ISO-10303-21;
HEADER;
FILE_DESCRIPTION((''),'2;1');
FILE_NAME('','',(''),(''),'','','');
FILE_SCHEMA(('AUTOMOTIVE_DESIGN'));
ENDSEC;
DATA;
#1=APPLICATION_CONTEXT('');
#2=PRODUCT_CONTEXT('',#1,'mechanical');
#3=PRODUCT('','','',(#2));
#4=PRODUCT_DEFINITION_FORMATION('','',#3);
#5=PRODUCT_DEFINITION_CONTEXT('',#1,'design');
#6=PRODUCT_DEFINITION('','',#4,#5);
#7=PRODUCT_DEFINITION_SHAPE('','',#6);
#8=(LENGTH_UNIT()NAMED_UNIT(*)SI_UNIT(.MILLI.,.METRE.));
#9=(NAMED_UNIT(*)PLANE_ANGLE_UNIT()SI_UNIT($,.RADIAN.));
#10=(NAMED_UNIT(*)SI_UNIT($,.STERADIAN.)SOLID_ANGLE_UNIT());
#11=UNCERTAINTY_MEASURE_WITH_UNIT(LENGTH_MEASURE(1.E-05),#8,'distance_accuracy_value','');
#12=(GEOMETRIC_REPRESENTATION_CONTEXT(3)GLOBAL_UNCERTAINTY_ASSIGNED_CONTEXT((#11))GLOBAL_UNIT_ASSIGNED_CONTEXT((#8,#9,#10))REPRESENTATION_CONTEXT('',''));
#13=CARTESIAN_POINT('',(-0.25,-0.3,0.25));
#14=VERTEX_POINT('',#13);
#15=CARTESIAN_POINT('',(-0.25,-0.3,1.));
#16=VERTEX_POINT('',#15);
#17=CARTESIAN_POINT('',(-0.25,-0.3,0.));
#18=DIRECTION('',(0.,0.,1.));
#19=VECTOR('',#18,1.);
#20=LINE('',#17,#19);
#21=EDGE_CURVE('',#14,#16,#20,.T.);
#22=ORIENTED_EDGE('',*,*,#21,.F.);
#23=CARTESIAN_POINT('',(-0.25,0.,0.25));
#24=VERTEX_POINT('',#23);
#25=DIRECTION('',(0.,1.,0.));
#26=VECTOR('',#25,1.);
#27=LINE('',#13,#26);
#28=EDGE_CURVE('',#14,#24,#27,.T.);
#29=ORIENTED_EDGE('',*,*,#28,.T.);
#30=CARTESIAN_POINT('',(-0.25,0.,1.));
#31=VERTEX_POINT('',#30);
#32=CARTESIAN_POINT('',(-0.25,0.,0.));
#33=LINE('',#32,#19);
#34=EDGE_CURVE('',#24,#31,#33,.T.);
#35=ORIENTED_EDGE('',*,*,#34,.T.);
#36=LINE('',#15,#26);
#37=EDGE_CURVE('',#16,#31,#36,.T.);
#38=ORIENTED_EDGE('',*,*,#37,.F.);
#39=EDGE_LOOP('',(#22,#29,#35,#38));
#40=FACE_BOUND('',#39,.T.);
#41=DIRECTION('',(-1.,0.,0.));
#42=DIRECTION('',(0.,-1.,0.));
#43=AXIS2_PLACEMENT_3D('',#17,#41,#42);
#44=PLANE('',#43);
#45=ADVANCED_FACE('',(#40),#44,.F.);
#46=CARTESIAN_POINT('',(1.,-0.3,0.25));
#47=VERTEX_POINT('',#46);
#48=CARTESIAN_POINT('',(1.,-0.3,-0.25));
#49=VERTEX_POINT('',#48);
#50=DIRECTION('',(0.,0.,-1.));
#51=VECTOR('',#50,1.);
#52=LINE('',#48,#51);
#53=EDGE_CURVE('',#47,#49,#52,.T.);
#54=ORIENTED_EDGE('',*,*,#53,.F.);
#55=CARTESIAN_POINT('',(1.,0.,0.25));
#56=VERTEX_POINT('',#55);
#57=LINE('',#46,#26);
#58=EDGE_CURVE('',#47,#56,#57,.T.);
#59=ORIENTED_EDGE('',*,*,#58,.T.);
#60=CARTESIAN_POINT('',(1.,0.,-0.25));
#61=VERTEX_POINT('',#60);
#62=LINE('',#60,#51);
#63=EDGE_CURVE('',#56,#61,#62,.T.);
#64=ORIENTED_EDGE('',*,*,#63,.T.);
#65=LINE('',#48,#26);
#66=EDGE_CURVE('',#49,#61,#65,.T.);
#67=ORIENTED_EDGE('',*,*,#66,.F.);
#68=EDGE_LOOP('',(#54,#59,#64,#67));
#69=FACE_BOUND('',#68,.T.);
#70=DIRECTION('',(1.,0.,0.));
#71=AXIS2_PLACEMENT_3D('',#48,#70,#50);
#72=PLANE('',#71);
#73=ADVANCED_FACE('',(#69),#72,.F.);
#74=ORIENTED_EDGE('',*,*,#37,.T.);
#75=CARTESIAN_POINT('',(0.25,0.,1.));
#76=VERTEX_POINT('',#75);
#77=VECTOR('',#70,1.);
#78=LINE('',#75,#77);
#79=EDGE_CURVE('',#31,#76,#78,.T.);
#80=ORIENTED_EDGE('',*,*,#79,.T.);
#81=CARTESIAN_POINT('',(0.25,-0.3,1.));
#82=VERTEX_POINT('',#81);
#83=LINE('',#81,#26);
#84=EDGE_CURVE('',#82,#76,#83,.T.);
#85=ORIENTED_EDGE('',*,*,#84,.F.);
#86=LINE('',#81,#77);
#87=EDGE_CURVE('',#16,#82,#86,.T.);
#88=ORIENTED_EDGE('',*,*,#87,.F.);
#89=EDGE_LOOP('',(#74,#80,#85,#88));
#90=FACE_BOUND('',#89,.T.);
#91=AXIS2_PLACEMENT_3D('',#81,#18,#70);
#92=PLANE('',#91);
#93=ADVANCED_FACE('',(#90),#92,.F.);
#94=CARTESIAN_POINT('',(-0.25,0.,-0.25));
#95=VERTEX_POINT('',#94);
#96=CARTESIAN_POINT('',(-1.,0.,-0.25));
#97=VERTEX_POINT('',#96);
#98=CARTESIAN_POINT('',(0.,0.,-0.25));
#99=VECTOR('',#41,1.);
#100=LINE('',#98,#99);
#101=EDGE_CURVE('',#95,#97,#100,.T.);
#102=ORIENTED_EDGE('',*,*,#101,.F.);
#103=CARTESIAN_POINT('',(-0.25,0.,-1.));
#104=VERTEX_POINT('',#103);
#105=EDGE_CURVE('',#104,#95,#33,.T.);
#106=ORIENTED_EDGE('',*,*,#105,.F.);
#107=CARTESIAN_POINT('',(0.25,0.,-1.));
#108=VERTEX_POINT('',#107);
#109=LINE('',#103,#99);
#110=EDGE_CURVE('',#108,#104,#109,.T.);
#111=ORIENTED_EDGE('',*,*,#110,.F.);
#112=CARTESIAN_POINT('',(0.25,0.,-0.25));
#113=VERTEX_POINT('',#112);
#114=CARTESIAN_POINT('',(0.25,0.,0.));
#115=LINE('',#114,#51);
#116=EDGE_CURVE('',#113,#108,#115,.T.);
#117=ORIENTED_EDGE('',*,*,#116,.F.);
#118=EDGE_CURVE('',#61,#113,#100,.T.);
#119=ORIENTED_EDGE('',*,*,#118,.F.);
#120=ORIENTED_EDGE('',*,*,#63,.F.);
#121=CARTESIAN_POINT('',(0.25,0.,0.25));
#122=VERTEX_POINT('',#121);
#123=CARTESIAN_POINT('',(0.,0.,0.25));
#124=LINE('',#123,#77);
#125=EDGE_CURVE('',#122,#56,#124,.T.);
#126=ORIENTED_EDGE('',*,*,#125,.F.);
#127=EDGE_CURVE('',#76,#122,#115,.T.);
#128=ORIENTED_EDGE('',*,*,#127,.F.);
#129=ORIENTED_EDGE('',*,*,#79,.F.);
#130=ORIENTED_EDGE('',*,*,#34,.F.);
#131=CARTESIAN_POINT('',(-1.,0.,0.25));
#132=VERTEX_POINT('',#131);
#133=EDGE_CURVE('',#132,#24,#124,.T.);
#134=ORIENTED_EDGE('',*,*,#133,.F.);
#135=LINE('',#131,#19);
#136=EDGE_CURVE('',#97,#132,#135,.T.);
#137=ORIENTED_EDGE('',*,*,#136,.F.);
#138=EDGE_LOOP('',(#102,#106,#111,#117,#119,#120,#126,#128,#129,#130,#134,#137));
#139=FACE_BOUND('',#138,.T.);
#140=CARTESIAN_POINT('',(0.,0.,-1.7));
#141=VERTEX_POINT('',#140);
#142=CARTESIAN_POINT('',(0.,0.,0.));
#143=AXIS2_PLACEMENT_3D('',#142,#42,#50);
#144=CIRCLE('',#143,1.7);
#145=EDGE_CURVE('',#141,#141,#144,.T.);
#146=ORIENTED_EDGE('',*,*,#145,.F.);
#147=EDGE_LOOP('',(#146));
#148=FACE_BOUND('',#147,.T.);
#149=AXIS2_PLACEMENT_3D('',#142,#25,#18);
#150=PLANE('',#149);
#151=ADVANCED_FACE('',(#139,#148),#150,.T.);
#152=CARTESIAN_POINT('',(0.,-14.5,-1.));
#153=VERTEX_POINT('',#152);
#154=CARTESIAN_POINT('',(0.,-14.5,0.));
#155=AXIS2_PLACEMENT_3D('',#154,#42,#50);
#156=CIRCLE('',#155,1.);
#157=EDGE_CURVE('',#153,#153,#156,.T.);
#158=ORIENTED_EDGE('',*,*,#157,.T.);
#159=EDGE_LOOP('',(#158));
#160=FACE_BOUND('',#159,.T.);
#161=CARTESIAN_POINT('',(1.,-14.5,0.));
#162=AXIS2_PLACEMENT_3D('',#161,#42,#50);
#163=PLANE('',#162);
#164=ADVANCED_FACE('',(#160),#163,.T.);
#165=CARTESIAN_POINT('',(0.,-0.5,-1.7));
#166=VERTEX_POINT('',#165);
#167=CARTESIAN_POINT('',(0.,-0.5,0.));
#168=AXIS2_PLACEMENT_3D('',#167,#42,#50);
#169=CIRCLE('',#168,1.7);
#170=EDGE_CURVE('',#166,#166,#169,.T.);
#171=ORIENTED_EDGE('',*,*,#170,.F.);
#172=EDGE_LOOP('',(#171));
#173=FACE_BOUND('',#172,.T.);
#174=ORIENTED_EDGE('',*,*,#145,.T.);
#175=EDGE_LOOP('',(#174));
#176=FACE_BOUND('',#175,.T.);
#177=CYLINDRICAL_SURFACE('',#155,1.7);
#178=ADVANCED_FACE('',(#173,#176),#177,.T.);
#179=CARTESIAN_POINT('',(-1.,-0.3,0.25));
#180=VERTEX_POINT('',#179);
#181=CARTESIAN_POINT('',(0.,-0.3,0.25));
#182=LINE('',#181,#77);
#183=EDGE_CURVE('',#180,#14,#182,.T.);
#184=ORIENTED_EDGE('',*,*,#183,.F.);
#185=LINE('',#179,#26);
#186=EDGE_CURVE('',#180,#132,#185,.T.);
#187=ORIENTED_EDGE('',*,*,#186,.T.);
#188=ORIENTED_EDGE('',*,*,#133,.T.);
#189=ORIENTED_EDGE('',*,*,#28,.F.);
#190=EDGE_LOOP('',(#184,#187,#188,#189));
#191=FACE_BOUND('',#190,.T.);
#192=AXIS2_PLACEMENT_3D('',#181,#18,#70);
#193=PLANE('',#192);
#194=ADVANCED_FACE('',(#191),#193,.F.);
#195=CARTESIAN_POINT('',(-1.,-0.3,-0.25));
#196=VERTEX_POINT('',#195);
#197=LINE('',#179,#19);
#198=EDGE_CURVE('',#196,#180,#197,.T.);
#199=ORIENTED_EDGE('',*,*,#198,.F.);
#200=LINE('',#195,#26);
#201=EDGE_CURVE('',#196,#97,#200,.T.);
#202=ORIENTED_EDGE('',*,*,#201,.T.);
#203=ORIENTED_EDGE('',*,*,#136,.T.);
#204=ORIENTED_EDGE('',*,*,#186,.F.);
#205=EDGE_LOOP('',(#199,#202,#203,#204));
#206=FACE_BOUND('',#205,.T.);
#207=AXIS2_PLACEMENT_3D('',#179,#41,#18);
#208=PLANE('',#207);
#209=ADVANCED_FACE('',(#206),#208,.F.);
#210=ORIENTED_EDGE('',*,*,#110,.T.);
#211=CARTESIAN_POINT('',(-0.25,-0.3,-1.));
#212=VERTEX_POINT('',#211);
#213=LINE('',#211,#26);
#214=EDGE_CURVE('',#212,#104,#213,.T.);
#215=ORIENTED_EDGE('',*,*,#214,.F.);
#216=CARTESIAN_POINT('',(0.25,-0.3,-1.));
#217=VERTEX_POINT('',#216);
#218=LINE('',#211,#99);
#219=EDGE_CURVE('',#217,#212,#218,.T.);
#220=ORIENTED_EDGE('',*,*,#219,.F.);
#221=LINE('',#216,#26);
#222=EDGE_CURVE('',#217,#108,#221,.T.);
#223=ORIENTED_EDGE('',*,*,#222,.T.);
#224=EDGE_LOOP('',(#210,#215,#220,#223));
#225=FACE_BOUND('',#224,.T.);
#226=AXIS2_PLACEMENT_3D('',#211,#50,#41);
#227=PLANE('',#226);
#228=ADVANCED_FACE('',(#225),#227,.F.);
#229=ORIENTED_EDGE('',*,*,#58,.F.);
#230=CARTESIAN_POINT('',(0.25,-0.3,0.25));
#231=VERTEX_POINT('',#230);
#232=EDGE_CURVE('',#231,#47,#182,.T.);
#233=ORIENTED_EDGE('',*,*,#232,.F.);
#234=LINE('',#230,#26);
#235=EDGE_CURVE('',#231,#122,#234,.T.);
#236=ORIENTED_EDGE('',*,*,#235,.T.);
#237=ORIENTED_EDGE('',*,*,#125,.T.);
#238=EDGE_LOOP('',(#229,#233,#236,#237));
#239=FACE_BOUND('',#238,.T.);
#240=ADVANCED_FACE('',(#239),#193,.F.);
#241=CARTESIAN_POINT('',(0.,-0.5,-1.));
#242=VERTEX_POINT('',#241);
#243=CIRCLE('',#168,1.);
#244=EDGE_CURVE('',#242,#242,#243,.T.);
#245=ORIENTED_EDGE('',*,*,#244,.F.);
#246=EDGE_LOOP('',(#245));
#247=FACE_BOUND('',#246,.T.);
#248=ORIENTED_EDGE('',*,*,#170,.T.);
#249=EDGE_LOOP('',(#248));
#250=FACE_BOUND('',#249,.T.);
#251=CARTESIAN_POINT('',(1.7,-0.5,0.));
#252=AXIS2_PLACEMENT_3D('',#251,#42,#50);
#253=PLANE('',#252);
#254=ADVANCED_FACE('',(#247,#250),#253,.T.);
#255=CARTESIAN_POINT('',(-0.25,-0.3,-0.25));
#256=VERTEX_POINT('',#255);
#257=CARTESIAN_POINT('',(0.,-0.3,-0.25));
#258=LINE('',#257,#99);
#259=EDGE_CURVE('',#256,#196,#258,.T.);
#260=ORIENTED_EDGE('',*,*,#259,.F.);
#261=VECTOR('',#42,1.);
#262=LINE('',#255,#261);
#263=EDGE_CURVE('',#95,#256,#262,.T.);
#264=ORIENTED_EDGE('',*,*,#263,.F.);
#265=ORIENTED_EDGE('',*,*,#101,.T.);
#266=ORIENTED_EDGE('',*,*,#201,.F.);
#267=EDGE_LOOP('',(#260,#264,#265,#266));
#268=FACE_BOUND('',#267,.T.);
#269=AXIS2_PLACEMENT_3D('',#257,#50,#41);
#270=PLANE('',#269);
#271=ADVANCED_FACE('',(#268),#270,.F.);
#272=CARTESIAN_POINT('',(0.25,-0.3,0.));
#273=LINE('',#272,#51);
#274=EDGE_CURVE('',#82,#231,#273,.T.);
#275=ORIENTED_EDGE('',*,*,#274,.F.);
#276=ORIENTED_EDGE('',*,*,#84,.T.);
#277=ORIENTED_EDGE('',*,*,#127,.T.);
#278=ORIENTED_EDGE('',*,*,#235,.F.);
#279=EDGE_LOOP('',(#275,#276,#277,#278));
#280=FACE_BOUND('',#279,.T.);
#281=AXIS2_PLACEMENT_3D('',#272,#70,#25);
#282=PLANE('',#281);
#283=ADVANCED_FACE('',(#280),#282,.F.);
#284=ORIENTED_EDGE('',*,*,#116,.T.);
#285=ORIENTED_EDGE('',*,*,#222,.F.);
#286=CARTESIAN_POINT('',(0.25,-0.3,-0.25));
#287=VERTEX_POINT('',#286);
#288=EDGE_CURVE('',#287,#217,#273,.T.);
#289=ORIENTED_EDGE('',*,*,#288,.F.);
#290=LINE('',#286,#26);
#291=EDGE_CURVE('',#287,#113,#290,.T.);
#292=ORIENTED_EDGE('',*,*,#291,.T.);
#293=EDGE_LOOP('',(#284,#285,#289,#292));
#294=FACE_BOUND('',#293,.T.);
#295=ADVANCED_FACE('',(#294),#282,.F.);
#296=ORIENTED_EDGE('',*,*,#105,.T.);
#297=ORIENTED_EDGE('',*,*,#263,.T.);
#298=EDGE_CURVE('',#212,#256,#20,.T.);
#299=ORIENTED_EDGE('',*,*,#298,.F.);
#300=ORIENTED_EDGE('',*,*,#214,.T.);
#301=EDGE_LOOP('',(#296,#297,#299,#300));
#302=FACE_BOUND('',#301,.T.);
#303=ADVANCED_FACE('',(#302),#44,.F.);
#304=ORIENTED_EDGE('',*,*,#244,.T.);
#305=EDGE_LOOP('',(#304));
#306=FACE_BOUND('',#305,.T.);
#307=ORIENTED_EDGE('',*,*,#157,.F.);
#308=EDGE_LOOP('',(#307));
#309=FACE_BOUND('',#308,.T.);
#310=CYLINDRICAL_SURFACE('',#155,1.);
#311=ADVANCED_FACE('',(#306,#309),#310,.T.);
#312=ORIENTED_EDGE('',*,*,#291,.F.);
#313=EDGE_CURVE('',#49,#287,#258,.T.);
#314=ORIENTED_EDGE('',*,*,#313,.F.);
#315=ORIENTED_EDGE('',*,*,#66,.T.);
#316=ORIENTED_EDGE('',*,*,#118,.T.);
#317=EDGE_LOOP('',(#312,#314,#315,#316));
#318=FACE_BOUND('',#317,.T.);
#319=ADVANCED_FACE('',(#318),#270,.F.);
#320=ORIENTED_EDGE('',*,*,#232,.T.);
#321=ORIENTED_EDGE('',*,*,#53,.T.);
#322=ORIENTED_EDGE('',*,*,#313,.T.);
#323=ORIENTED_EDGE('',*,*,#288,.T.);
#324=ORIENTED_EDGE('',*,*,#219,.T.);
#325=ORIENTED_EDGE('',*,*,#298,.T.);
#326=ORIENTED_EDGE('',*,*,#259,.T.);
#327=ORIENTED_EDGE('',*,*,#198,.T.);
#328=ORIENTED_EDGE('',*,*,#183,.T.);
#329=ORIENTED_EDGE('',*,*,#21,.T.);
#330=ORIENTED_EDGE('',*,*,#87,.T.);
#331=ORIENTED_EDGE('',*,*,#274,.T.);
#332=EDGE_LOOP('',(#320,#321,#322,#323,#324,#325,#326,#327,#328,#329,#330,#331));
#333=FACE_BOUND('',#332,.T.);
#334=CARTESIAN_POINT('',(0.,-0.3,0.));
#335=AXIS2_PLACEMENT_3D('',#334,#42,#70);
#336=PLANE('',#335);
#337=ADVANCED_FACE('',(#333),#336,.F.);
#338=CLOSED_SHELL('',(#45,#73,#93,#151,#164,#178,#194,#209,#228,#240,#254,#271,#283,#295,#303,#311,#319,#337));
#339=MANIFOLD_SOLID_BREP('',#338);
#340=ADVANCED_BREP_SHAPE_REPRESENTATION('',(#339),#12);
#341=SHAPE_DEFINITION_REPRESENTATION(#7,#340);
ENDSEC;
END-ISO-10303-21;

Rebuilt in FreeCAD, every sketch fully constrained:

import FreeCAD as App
import Part
import Sketcher
from FreeCAD import Vector
Q = App.Units.Quantity


def add_polygon(sketch, points):
    """Adds a closed chain of lines whose ends are joined by coincident constraints."""
    first, n = sketch.GeometryCount, len(points)
    for a, b in zip(points, points[1:] + points[:1]):
        sketch.addGeometry(Part.LineSegment(App.Vector(*a, 0), App.Vector(*b, 0)), False)
    for i in range(n):
        sketch.addConstraint(Sketcher.Constraint("Coincident", first + i, 2, first + (i + 1) % n, 1))

doc = App.newDocument("Part")
params = doc.addObject("Spreadsheet::Sheet", "Params")
for row, (alias, value) in enumerate([
    ("sketch1_width", "1 mm"),
    ("sketch1_height", "14 mm"),
    ("sketch1_width2", "1.7 mm"),
    ("sketch1_height2", "14.5 mm"),
    ("revolution_angle", "360 deg"),
    ("sketch2_height", "1 mm"),
    ("sketch2_width", "0.5 mm"),
    ("pocket1_length", "0.3 mm"),
], start=1):
    params.set(f"A{row}", alias)
    params.set(f"B{row}", "=" + value)
    params.setAlias(f"B{row}", alias)

body = doc.addObject("PartDesign::Body", "Body")

sketch1 = body.newObject("Sketcher::SketchObject", "Sketch")
sketch1.AttachmentSupport = (doc.getObject("XY_Plane"), [""])
sketch1.MapMode = "FlatFace"
add_polygon(sketch1, [(1.7, 0), (0, 0), (0, -14.5), (1, -14.5), (1, -0.5), (1.7, -0.5)])
sketch1.addConstraint(Sketcher.Constraint("Horizontal", 0))
sketch1.addConstraint(Sketcher.Constraint("Vertical", 1))
sketch1.addConstraint(Sketcher.Constraint("Horizontal", 2))
sketch1.addConstraint(Sketcher.Constraint("Vertical", 3))
sketch1.addConstraint(Sketcher.Constraint("Horizontal", 4))
sketch1.addConstraint(Sketcher.Constraint("Vertical", 5))
sketch1.addConstraint(Sketcher.Constraint("Coincident", 0, 2, -1, 1))
sketch1.addConstraint(Sketcher.Constraint("DistanceX", 2, 1, 2, 2, Q("1 mm")))
sketch1.addConstraint(Sketcher.Constraint("DistanceY", 3, 1, 3, 2, Q("14 mm")))
sketch1.addConstraint(Sketcher.Constraint("DistanceX", 0, 2, 0, 1, Q("1.7 mm")))
sketch1.addConstraint(Sketcher.Constraint("DistanceY", 1, 2, 1, 1, Q("14.5 mm")))
sketch1.setExpression("Constraints[13]", "Params.sketch1_width")
sketch1.setExpression("Constraints[14]", "Params.sketch1_height")
sketch1.setExpression("Constraints[15]", "Params.sketch1_width2")
sketch1.setExpression("Constraints[16]", "Params.sketch1_height2")
revolution = body.newObject("PartDesign::Revolution", "Revolution")
revolution.Profile = sketch1
revolution.ReferenceAxis = (sketch1, ["V_Axis"])
revolution.setExpression("Angle", "Params.revolution_angle")

sketch2 = body.newObject("Sketcher::SketchObject", "Sketch001")
sketch2.AttachmentSupport = (doc.getObject("XZ_Plane"), [""])
sketch2.MapMode = "FlatFace"
add_polygon(sketch2, [(-0.2, -1), (-0.2, 0), (0.2, 0), (0.2, -1)])
sketch2.addConstraint(Sketcher.Constraint("Vertical", 0))
sketch2.addConstraint(Sketcher.Constraint("Horizontal", 1))
sketch2.addConstraint(Sketcher.Constraint("Vertical", 2))
sketch2.addConstraint(Sketcher.Constraint("Horizontal", 3))
sketch2.addConstraint(Sketcher.Constraint("Symmetric", 0, 2, 1, 2, -1, 1))
sketch2.addConstraint(Sketcher.Constraint("DistanceY", 0, 1, 0, 2, Q("1 mm")))
sketch2.addConstraint(Sketcher.Constraint("DistanceX", 1, 1, 1, 2, Q("0.5 mm")))
sketch2.setExpression("Constraints[9]", "Params.sketch2_height")
sketch2.setExpression("Constraints[10]", "Params.sketch2_width")
pocket1 = body.newObject("PartDesign::Pocket", "Pocket")
pocket1.Profile = sketch2
pocket1.setExpression("Length", "Params.pocket1_length")
pocket1.Reversed = True
doc.recompute()

polarpattern = body.newObject("PartDesign::PolarPattern", "PolarPattern")
polarpattern.Originals = [pocket1]
polarpattern.Axis = (doc.getObject("Y_Axis"), [""])
polarpattern.Angle = 360
polarpattern.Occurrences = 4
body.Tip = polarpattern

doc.recompute()
